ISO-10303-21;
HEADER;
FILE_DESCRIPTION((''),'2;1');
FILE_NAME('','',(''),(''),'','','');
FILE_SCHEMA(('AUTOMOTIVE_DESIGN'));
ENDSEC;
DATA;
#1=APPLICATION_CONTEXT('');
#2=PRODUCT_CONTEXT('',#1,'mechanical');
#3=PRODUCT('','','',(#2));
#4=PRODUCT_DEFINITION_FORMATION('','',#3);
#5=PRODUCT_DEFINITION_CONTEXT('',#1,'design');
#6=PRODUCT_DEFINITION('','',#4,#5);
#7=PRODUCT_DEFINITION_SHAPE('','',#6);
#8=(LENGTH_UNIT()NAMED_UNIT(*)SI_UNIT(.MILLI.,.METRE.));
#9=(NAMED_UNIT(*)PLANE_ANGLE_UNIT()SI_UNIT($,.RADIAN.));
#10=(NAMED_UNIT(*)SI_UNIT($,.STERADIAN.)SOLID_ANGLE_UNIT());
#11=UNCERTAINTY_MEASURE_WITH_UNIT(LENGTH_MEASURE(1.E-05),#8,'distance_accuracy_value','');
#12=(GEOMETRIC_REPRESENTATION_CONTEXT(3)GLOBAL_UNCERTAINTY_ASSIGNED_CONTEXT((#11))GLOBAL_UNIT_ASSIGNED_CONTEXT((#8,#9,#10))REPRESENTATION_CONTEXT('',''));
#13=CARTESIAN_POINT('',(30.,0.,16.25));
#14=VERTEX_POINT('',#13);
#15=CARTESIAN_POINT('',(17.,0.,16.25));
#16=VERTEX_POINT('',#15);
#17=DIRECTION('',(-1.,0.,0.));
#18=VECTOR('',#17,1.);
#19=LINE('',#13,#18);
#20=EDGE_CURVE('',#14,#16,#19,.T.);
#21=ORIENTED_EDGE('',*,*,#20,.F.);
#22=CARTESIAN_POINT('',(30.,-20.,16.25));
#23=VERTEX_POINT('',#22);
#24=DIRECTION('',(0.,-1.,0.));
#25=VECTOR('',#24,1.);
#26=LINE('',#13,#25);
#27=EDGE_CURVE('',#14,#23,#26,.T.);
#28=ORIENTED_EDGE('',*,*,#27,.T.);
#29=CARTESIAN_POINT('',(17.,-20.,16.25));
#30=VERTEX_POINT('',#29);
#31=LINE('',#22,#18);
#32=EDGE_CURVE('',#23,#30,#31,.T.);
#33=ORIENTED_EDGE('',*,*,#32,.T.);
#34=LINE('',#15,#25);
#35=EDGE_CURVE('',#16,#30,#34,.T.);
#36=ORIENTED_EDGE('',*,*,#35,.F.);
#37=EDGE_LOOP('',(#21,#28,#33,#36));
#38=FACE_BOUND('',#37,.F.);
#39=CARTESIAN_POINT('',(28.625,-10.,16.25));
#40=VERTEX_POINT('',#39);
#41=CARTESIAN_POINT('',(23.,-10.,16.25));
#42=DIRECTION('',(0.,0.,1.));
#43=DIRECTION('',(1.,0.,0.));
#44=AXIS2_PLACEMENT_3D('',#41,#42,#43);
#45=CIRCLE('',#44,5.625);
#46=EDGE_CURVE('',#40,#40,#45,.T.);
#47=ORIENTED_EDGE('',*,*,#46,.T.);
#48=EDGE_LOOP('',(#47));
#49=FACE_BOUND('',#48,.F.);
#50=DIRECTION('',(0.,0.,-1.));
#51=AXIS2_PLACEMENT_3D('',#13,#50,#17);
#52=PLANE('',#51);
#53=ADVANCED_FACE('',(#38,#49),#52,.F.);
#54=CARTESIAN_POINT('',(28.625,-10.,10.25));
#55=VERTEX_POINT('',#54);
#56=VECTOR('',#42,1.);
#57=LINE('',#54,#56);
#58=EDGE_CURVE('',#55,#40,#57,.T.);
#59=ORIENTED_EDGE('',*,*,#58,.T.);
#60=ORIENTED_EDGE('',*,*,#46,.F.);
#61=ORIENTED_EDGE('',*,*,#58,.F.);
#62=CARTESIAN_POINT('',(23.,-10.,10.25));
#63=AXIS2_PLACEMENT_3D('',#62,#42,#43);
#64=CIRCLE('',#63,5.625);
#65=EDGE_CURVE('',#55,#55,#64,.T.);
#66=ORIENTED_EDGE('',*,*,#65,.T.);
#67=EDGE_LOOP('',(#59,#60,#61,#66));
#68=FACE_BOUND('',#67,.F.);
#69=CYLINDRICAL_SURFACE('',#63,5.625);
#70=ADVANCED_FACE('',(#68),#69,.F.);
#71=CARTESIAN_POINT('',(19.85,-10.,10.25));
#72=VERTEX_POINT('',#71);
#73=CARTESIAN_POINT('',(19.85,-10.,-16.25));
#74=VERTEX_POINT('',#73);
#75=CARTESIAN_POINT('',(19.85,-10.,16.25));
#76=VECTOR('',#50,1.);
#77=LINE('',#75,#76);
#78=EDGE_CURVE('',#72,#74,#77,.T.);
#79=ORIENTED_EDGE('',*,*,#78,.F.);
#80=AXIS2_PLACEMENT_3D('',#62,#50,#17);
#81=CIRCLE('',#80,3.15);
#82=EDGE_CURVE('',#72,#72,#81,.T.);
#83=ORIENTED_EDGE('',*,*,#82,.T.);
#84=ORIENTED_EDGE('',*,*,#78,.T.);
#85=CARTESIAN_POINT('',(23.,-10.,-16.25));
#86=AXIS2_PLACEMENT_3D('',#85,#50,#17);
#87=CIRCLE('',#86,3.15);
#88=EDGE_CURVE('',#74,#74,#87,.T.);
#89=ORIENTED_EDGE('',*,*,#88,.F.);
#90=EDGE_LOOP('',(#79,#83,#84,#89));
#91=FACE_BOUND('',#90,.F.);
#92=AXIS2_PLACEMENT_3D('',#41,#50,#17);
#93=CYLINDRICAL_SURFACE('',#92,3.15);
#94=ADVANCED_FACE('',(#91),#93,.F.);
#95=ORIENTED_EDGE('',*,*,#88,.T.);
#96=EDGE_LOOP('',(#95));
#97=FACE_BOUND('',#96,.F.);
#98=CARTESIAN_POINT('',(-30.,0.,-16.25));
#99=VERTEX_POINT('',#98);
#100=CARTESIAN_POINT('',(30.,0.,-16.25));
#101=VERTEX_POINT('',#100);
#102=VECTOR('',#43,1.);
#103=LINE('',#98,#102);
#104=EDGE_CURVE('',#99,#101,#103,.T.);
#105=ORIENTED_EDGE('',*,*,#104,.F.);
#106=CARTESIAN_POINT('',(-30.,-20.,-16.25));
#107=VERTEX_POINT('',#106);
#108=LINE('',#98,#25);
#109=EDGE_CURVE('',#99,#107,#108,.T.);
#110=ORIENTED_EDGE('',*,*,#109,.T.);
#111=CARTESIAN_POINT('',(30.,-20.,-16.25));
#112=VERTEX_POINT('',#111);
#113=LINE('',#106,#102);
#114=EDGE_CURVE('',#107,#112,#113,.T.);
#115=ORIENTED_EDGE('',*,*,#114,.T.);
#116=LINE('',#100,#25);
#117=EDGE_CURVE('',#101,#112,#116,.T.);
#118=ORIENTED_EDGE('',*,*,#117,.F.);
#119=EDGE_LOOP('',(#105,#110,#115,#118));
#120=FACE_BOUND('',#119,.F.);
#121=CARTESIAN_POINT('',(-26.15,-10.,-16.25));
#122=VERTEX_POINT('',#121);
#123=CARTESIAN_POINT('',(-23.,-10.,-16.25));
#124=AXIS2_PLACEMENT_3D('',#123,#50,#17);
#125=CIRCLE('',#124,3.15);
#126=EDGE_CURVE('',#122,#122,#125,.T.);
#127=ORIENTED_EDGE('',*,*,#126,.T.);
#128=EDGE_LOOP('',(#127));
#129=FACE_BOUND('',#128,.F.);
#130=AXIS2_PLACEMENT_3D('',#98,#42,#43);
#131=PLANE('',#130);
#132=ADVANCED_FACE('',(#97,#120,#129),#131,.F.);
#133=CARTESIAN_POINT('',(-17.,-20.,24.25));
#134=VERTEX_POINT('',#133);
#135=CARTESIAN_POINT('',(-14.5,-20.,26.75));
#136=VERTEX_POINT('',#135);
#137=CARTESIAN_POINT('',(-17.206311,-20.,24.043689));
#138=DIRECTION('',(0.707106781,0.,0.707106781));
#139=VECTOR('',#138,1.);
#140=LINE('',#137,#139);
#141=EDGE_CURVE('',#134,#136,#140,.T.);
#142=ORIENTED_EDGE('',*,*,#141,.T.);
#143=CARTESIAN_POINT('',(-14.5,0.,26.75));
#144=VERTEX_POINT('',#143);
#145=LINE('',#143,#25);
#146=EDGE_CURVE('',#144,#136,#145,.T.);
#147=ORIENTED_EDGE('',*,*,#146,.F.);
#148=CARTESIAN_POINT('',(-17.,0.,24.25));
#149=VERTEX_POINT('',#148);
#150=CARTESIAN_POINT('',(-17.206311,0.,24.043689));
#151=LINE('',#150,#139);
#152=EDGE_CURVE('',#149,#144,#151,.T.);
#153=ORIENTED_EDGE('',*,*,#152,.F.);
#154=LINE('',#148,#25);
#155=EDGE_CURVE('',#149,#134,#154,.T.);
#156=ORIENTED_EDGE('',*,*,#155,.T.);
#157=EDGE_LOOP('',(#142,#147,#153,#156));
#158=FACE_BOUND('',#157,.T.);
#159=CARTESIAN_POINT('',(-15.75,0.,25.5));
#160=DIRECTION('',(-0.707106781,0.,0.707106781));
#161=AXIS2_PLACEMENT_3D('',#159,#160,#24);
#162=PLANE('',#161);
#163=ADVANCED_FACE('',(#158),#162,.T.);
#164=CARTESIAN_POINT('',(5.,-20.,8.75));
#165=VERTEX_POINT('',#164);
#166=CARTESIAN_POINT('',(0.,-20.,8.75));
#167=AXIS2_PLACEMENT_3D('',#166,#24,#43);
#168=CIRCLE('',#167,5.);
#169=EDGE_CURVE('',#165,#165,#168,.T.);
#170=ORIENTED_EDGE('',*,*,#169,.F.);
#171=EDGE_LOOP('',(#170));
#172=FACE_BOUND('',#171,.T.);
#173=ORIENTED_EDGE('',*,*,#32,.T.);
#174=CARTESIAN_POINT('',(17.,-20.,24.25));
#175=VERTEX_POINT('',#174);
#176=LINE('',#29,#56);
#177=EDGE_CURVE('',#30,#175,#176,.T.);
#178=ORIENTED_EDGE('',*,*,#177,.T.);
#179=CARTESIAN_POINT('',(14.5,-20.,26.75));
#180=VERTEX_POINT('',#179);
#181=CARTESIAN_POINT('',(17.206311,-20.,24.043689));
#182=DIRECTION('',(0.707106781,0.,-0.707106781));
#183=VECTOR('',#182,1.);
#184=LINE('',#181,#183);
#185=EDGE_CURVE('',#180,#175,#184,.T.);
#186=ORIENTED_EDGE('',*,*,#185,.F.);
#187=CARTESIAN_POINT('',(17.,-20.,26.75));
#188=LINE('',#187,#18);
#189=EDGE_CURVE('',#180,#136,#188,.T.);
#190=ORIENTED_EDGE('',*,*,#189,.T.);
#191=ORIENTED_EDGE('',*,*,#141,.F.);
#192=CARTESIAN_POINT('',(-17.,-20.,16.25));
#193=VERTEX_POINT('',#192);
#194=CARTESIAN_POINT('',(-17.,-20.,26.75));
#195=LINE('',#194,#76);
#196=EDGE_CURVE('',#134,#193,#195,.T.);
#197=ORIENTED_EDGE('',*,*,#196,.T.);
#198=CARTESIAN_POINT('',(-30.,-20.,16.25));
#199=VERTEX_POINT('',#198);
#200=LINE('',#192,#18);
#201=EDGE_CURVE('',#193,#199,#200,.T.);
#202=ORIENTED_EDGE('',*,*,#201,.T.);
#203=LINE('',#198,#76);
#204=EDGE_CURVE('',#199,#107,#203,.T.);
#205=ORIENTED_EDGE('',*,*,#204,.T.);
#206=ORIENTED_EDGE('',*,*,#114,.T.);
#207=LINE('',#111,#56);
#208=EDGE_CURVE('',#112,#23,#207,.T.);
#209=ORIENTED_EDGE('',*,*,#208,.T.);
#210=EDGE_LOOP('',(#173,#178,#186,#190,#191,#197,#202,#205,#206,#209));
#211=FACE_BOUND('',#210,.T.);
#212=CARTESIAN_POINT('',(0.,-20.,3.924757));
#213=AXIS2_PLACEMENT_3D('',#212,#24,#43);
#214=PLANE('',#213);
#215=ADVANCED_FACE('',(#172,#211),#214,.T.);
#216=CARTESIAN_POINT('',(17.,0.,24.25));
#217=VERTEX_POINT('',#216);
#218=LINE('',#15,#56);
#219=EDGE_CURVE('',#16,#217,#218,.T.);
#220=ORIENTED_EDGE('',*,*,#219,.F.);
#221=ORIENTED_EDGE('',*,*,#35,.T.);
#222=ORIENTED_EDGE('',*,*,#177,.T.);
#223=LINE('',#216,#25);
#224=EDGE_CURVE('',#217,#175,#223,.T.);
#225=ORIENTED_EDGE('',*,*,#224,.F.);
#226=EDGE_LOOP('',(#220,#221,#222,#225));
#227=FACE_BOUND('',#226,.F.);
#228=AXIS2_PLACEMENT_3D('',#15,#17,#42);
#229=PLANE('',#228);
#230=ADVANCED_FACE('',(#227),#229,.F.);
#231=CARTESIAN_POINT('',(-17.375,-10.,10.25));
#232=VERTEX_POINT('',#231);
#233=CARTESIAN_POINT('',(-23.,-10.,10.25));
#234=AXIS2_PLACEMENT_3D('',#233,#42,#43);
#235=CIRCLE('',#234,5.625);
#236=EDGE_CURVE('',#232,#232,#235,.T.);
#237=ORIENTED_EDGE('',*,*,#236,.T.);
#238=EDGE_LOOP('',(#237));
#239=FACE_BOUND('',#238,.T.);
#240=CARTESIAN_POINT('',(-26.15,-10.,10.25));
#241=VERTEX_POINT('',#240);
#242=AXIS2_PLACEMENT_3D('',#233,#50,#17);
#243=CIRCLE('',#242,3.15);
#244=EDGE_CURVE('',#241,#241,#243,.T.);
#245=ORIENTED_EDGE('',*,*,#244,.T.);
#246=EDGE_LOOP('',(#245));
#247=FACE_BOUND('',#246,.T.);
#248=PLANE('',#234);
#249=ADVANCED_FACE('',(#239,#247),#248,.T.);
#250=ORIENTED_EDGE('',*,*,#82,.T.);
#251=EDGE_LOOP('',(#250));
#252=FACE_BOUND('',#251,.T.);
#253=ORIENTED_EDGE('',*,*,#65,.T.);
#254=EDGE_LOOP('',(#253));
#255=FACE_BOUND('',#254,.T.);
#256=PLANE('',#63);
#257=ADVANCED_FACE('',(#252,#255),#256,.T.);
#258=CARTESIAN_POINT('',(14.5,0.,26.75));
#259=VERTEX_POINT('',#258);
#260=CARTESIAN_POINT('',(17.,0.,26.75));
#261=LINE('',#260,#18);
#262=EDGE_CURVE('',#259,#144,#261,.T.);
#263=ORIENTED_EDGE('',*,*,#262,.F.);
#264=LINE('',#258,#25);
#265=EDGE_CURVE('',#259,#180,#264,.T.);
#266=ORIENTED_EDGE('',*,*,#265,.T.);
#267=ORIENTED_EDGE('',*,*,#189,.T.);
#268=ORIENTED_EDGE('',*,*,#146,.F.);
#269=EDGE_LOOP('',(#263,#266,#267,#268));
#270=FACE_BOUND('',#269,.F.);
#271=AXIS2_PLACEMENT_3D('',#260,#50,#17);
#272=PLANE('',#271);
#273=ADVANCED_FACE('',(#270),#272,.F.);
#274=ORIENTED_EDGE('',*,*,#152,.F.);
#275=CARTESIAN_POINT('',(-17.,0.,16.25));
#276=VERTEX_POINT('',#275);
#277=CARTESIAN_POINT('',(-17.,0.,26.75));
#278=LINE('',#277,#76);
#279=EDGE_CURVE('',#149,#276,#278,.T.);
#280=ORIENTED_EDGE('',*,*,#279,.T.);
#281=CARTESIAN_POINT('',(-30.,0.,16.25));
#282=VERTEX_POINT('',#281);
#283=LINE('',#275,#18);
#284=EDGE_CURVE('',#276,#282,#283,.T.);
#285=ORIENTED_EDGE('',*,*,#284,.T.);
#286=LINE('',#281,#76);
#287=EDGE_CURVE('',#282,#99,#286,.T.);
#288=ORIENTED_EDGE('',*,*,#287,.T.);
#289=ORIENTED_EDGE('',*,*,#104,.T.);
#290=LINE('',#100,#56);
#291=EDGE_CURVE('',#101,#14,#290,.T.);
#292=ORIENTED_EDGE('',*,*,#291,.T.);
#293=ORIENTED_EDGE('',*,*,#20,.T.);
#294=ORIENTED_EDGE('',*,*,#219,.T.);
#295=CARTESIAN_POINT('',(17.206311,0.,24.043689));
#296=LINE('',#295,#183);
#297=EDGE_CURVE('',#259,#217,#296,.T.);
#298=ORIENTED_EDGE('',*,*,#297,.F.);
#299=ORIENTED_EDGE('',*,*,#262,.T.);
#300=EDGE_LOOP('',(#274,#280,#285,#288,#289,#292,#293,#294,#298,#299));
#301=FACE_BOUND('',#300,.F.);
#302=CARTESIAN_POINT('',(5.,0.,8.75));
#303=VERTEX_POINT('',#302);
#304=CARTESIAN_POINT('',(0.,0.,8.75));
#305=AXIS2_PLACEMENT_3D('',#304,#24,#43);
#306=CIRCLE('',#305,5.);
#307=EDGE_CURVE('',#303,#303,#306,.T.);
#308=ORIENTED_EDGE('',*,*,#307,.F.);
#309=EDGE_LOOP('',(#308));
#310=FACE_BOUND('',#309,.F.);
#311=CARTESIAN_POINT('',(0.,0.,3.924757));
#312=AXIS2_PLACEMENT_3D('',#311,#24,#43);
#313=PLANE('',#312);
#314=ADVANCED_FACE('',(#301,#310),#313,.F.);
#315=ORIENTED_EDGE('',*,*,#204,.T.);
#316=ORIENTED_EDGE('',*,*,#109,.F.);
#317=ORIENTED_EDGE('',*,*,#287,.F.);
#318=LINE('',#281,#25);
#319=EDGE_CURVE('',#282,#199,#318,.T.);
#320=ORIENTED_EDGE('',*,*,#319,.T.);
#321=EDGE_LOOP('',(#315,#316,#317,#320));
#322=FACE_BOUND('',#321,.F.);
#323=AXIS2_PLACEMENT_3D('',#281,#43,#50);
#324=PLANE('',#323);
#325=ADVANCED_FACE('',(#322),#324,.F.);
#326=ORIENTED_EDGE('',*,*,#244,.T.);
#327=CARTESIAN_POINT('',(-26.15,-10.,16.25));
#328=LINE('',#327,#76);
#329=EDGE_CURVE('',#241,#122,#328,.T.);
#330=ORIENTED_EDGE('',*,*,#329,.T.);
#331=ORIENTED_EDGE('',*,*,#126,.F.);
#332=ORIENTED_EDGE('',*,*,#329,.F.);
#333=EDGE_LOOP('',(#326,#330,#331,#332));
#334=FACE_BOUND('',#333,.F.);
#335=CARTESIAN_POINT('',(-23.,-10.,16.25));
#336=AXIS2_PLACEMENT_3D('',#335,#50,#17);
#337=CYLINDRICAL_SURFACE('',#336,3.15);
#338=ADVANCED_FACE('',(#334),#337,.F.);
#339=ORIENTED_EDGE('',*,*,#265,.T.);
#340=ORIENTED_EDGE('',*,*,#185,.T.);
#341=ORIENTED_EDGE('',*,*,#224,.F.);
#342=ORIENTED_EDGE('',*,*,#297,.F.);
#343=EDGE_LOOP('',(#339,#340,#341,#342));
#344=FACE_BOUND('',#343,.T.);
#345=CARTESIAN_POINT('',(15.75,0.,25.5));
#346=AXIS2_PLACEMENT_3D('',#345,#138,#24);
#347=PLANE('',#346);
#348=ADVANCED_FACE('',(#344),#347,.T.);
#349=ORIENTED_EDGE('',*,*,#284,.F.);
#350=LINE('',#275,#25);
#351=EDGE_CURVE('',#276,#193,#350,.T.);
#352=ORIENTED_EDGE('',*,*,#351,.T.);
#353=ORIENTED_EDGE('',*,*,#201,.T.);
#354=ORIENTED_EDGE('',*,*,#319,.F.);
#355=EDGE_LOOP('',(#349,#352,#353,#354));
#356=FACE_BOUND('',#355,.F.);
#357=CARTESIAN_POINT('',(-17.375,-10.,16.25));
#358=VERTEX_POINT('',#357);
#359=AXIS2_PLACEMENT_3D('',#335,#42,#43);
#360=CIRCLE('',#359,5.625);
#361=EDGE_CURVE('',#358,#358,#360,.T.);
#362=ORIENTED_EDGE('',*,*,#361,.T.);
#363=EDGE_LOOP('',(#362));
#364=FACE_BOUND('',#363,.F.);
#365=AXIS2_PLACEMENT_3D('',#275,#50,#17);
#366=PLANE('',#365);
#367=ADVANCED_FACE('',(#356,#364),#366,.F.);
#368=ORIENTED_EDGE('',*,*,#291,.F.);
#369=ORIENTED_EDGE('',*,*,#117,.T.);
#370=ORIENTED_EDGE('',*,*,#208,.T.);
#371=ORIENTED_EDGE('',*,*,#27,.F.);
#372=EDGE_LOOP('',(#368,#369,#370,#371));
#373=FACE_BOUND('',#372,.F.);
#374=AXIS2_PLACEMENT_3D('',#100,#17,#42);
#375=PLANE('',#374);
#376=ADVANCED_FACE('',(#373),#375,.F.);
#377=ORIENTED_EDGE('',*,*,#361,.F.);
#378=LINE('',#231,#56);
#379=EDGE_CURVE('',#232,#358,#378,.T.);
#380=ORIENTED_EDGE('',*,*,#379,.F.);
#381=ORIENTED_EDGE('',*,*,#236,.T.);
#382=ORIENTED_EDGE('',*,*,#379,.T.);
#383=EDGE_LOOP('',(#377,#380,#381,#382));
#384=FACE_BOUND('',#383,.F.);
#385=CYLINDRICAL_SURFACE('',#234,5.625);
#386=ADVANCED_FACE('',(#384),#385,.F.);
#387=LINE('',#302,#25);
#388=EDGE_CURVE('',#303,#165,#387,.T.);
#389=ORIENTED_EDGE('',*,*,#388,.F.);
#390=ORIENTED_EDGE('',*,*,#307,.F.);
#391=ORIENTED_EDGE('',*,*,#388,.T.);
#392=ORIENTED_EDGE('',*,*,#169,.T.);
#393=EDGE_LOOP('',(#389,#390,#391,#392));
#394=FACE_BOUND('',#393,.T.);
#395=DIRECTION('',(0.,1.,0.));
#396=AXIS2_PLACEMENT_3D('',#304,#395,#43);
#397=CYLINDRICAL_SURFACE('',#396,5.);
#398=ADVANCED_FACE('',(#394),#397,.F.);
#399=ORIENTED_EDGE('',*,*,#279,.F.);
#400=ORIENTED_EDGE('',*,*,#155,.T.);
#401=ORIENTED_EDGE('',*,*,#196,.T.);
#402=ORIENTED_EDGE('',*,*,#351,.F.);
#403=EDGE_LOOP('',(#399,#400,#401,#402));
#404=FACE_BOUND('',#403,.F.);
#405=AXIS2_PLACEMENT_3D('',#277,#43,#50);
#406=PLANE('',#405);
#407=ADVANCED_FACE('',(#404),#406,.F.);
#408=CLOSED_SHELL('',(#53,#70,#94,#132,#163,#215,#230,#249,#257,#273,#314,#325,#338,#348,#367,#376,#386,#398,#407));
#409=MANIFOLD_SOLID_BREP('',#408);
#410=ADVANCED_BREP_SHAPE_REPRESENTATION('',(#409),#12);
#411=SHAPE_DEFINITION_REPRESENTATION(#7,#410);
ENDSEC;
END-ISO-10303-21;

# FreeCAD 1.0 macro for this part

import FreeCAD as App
import Part
import Sketcher

V = App.Vector
Q = App.Units.Quantity


def edges_at(feature, points):
    """Names of the edges that pass closest to the given points."""
    edges = feature.Shape.Edges
    near = lambda p: min(range(len(edges)), key=lambda i: edges[i].distToShape(Part.Vertex(*p))[0])
    return sorted({f"Edge{near(p) + 1}" for p in points})


def add_polygon(sketch, points):
    """Adds a closed chain of lines whose ends are joined by coincident constraints."""
    first, n = sketch.GeometryCount, len(points)
    for a, b in zip(points, points[1:] + points[:1]):
        sketch.addGeometry(Part.LineSegment(App.Vector(*a, 0), App.Vector(*b, 0)), False)
    for i in range(n):
        sketch.addConstraint(Sketcher.Constraint("Coincident", first + i, 2, first + (i + 1) % n, 1))

doc = App.newDocument("Part")
params = doc.addObject("Spreadsheet::Sheet", "Params")
for row, (alias, value) in enumerate([
    ("sketch1_diameter", "10 mm"),
    ("sketch1_width", "60 mm"),
    ("sketch1_width2", "13 mm"),
    ("sketch1_height", "32.5 mm"),
    ("sketch1_height2", "10.5 mm"),
    ("pad1_length", "20 mm"),
    ("sketch2_diameter", "6.3 mm"),
    ("hole_diameter", "6.3 mm"),
    ("hole_cbore_diameter", "11.25 mm"),
    ("hole_cbore_depth", "6 mm"),
    ("chamfer_size", "2.5 mm"),
], start=1):
    params.set(f"A{row}", alias)
    params.set(f"B{row}", "=" + value)
    params.setAlias(f"B{row}", alias)

body = doc.addObject("PartDesign::Body", "Body")

# Sketch on XZ plane
sketch1 = body.newObject("Sketcher::SketchObject", "Sketch")
sketch1.AttachmentSupport = (doc.getObject("XZ_Plane"), [""])
sketch1.MapMode = "FlatFace"
add_polygon(sketch1, [(-30, 16), (-30, -16), (30, -16), (30, 16), (17, 16), (17, 27), (-17, 27), (-17, 16)])  # lines 0-7
sketch1.addGeometry(Part.Circle(V(0, 9, 0), V(0, 0, 1), 5), False)  # 8
sketch1.addConstraint([
    Sketcher.Constraint("Vertical", 0),
    Sketcher.Constraint("Horizontal", 1),
    Sketcher.Constraint("Vertical", 2),
    Sketcher.Constraint("Horizontal", 3),
    Sketcher.Constraint("Vertical", 4),
    Sketcher.Constraint("Horizontal", 5),
    Sketcher.Constraint("Vertical", 6),
    Sketcher.Constraint("Horizontal", 7),
    Sketcher.Constraint("Symmetric", 0, 2, 2, 2, -1, 1),
    Sketcher.Constraint("Symmetric", 3, 2, 6, 2, -2),
    Sketcher.Constraint("PointOnObject", 8, 3, -2),
    Sketcher.Constraint("Diameter", 8, Q("10 mm")),
    Sketcher.Constraint("DistanceX", 1, 1, 1, 2, Q("60 mm")),
    Sketcher.Constraint("DistanceX", 3, 2, 3, 1, Q("13 mm")),
    Sketcher.Constraint("DistanceY", 0, 2, 0, 1, Q("32.5 mm")),
    Sketcher.Constraint("DistanceY", 4, 1, 4, 2, Q("10.5 mm")),
    Sketcher.Constraint("DistanceY", 0, 2, 8, 3, Q("25 mm")),
])
sketch1.setExpression("Constraints[19]", "Params.sketch1_diameter")
sketch1.setExpression("Constraints[20]", "Params.sketch1_width")
sketch1.setExpression("Constraints[21]", "Params.sketch1_width2")
sketch1.setExpression("Constraints[22]", "Params.sketch1_height")
sketch1.setExpression("Constraints[23]", "Params.sketch1_height2")
pad1 = body.newObject("PartDesign::Pad", "Pad")
pad1.Profile = sketch1
pad1.setExpression("Length", "Params.pad1_length")

# Sketch on XY plane
sketch2 = body.newObject("Sketcher::SketchObject", "Sketch001")
sketch2.AttachmentSupport = (doc.getObject("XY_Plane"), [""])
sketch2.MapMode = "FlatFace"
sketch2.AttachmentOffset = App.Placement(V(0, 0, 16.25), App.Rotation())
sketch2.addGeometry([
    Part.Circle(V(23, -10, 0), V(0, 0, 1), 3.1),
    Part.Circle(V(-23, -10, 0), V(0, 0, 1), 3.1),
], False)
sketch2.addConstraint([
    Sketcher.Constraint("Equal", 0, 1),
    Sketcher.Constraint("Symmetric", 0, 3, 1, 3, -2),
    Sketcher.Constraint("Diameter", 0, Q("6.3 mm")),
    Sketcher.Constraint("DistanceX", -1, 1, 0, 3, Q("23 mm")),
    Sketcher.Constraint("DistanceY", 0, 3, -1, 1, Q("10 mm")),
])
sketch2.setExpression("Constraints[2]", "Params.sketch2_diameter")
doc.recompute()
hole = body.newObject("PartDesign::Hole", "Hole")
hole.Profile = sketch2
hole.ThreadType = "None"
hole.setExpression("Diameter", "Params.hole_diameter")
hole.DepthType = "ThroughAll"
hole.HoleCutType = "Counterbore"
hole.setExpression("HoleCutDiameter", "Params.hole_cbore_diameter")
hole.setExpression("HoleCutDepth", "Params.hole_cbore_depth")
doc.recompute()

chamfer = body.newObject("PartDesign::Chamfer", "Chamfer")
chamfer.Base = (hole, edges_at(hole, [(17, -10, 26.75), (-17, -10, 26.75)]))
chamfer.setExpression("Size", "Params.chamfer_size")

doc.recompute()
